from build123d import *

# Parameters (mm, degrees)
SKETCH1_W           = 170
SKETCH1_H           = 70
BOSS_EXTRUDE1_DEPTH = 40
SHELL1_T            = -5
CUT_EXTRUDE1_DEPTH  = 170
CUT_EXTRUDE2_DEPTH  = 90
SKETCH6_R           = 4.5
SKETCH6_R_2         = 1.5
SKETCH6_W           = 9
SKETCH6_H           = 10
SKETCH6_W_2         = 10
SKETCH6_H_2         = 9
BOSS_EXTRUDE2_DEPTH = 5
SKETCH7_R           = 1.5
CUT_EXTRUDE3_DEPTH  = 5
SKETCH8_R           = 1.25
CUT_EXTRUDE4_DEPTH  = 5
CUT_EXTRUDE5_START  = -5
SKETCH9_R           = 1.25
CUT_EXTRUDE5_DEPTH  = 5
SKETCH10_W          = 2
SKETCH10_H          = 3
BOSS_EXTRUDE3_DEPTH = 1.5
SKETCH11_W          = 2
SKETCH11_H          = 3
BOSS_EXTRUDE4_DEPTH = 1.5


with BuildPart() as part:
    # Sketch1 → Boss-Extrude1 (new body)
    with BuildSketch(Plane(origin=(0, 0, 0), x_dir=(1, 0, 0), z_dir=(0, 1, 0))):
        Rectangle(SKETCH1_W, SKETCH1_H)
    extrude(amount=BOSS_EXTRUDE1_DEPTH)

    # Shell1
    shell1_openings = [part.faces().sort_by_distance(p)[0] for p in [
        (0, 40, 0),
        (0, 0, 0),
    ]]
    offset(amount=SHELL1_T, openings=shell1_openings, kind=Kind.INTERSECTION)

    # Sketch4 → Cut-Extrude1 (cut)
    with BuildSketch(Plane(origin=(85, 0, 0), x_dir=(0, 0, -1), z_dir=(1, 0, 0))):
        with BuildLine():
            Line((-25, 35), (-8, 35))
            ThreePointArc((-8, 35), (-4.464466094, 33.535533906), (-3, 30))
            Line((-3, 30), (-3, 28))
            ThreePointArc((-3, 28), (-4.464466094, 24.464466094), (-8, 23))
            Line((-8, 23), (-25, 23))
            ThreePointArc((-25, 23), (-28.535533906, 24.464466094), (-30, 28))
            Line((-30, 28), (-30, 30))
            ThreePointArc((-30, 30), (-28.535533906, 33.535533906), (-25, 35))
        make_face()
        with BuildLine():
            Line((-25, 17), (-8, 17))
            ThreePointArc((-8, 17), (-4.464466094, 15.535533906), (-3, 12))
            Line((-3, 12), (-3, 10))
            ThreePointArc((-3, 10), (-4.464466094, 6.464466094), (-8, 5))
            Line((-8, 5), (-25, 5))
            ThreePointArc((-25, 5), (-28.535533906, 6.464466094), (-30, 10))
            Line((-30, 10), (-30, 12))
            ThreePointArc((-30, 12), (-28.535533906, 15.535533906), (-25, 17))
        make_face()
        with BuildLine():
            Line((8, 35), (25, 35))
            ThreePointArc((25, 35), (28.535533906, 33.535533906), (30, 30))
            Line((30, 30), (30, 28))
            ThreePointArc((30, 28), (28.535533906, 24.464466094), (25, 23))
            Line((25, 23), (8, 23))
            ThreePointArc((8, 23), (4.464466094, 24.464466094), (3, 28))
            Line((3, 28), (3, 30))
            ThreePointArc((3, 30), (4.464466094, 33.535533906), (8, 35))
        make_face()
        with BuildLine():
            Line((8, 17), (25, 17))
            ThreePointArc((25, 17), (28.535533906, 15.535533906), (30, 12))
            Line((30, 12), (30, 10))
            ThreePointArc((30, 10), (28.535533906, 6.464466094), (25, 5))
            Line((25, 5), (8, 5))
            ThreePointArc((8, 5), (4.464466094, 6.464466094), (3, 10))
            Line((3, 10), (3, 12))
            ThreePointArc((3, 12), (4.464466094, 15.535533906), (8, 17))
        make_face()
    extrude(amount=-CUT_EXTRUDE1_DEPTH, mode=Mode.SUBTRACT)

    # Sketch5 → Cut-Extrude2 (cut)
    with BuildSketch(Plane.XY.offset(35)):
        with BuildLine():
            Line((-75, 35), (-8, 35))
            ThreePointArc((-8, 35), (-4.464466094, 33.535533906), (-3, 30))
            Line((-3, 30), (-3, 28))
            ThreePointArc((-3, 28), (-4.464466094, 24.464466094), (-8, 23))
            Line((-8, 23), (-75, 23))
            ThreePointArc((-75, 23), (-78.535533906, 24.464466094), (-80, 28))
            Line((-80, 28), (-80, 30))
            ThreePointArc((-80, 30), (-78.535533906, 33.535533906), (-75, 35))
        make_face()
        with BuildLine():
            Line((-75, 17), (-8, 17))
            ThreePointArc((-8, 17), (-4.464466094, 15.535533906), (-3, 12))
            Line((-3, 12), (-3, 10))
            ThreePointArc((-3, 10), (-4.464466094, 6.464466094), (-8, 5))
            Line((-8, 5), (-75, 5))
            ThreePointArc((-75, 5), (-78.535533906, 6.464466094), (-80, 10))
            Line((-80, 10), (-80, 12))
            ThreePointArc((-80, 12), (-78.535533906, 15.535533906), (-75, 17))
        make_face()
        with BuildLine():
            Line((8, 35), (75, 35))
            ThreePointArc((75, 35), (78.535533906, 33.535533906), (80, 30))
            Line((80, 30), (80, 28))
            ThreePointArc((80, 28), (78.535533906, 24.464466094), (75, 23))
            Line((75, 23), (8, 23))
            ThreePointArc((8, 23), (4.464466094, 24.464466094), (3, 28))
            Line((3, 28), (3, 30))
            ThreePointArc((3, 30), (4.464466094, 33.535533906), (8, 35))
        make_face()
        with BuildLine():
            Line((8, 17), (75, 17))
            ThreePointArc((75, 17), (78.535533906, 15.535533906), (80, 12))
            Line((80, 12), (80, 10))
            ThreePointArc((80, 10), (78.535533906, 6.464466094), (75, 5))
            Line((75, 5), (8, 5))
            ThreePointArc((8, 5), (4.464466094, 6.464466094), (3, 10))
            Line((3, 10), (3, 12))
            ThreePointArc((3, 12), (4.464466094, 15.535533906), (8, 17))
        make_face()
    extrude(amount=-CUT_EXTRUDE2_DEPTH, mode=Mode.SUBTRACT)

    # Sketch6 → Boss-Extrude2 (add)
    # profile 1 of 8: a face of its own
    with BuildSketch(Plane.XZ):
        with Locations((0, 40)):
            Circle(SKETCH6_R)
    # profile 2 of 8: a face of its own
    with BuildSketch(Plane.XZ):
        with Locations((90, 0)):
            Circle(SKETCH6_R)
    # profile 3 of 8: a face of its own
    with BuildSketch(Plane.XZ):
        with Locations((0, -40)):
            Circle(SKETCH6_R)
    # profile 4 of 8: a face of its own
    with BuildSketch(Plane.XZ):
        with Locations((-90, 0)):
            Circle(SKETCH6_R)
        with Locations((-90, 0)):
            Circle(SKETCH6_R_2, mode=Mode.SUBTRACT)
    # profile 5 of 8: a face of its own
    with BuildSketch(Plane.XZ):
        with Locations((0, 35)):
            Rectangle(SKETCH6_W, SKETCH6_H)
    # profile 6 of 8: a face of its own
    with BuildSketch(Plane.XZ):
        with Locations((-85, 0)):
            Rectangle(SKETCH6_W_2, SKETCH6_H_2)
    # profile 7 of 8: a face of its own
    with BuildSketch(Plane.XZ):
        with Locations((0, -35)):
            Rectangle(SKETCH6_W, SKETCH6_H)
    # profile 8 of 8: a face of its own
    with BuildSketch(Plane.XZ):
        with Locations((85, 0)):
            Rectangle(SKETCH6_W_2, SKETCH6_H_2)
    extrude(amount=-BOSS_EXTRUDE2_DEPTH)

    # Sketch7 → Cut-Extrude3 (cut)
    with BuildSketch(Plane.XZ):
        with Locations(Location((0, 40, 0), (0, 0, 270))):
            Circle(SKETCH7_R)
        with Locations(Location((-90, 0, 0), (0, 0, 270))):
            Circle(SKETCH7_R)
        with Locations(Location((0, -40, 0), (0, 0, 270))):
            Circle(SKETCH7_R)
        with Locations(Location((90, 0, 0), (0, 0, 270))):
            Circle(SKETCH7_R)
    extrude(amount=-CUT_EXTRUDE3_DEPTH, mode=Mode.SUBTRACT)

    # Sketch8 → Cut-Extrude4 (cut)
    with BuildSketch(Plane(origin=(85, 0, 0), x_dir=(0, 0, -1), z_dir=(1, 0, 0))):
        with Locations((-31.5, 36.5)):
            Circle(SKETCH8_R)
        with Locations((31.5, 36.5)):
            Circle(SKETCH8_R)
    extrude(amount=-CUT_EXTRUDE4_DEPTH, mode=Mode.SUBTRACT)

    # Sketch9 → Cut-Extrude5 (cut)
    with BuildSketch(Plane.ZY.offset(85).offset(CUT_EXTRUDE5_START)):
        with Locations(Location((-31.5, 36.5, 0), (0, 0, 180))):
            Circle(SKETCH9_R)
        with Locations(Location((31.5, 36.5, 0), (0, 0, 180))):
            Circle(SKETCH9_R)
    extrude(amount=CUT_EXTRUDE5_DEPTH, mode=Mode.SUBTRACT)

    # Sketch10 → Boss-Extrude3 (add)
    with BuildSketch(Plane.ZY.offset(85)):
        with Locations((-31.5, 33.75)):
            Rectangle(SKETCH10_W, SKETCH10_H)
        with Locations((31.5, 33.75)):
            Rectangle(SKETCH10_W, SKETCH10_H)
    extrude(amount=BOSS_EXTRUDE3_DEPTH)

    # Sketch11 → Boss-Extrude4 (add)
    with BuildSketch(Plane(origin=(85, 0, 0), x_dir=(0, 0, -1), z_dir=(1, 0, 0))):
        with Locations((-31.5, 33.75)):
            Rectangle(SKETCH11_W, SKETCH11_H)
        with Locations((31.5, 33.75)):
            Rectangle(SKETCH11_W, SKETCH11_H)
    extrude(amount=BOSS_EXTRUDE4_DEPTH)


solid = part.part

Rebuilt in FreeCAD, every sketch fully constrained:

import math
import FreeCAD as App
import Part
import Sketcher

V = App.Vector
Q = App.Units.Quantity


def faces_at(feature, points):
    """Names of the faces that lie closest to the given points."""
    faces = feature.Shape.Faces
    near = lambda p: min(range(len(faces)), key=lambda i: faces[i].distToShape(Part.Vertex(*p))[0])
    return sorted({f"Face{near(p) + 1}" for p in points})


def add_polygon(sketch, points):
    """Adds a closed chain of lines whose ends are joined by coincident constraints."""
    first, n = sketch.GeometryCount, len(points)
    for a, b in zip(points, points[1:] + points[:1]):
        sketch.addGeometry(Part.LineSegment(App.Vector(*a, 0), App.Vector(*b, 0)), False)
    for i in range(n):
        sketch.addConstraint(Sketcher.Constraint("Coincident", first + i, 2, first + (i + 1) % n, 1))

doc = App.newDocument("Part")
body = doc.addObject("PartDesign::Body", "Body")

# Sketch on XZ plane
sketch1 = body.newObject("Sketcher::SketchObject", "Sketch")
sketch1.AttachmentSupport = (doc.getObject("XZ_Plane"), [""])
sketch1.MapMode = "FlatFace"
add_polygon(sketch1, [(-85, -35), (-85, 35), (85, 35), (85, -35)])  # lines 0-3
sketch1.addConstraint([
    Sketcher.Constraint("Vertical", 0),
    Sketcher.Constraint("Horizontal", 1),
    Sketcher.Constraint("Vertical", 2),
    Sketcher.Constraint("Horizontal", 3),
    Sketcher.Constraint("Symmetric", 0, 2, 2, 2, -1, 1),
    Sketcher.Constraint("DistanceX", 1, 1, 1, 2, Q("170 mm")),
    Sketcher.Constraint("DistanceY", 0, 1, 0, 2, Q("70 mm")),
])
pad1 = body.newObject("PartDesign::Pad", "Pad")
pad1.Profile = sketch1
pad1.Length = 40
pad1.Reversed = True
doc.recompute()

thickness = body.newObject("PartDesign::Thickness", "Thickness")
thickness.Base = (pad1, faces_at(pad1, [(0, 40, 0), (0, 0, 0)]))
thickness.Value = 5
thickness.Reversed = True
thickness.Join = "Intersection"

# Sketch on YZ plane
sketch2 = body.newObject("Sketcher::SketchObject", "Sketch001")
sketch2.AttachmentSupport = (doc.getObject("YZ_Plane"), [""])
sketch2.MapMode = "FlatFace"
sketch2.AttachmentOffset = App.Placement(V(0, 0, 85), App.Rotation())
sketch2.addGeometry([
    Part.LineSegment(V(35, 8, 0), V(35, 25, 0)),  # 0
    Part.ArcOfCircle(Part.Circle(V(30, 25, 0), V(0, 0, 1), 5), math.radians(0), math.radians(90)),  # 1
    Part.LineSegment(V(30, 30, 0), V(28, 30, 0)),  # 2
    Part.ArcOfCircle(Part.Circle(V(28, 25, 0), V(0, 0, 1), 5), math.radians(90), math.radians(180)),  # 3
    Part.LineSegment(V(23, 25, 0), V(23, 8, 0)),  # 4
    Part.ArcOfCircle(Part.Circle(V(28, 8, 0), V(0, 0, 1), 5), math.radians(180), math.radians(270)),  # 5
    Part.LineSegment(V(28, 3, 0), V(30, 3, 0)),  # 6
    Part.ArcOfCircle(Part.Circle(V(30, 8, 0), V(0, 0, 1), 5), math.radians(-90), math.radians(0)),  # 7
    Part.LineSegment(V(17, 8, 0), V(17, 25, 0)),  # 8
    Part.ArcOfCircle(Part.Circle(V(12, 25, 0), V(0, 0, 1), 5), math.radians(0), math.radians(90)),  # 9
    Part.LineSegment(V(12, 30, 0), V(10, 30, 0)),  # 10
    Part.ArcOfCircle(Part.Circle(V(10, 25, 0), V(0, 0, 1), 5), math.radians(90), math.radians(180)),  # 11
    Part.LineSegment(V(5, 25, 0), V(5, 8, 0)),  # 12
    Part.ArcOfCircle(Part.Circle(V(10, 8, 0), V(0, 0, 1), 5), math.radians(180), math.radians(270)),  # 13
    Part.LineSegment(V(10, 3, 0), V(12, 3, 0)),  # 14
    Part.ArcOfCircle(Part.Circle(V(12, 8, 0), V(0, 0, 1), 5), math.radians(-90), math.radians(0)),  # 15
    Part.LineSegment(V(35, -25, 0), V(35, -8, 0)),  # 16
    Part.ArcOfCircle(Part.Circle(V(30, -8, 0), V(0, 0, 1), 5), math.radians(0), math.radians(90)),  # 17
    Part.LineSegment(V(30, -3, 0), V(28, -3, 0)),  # 18
    Part.ArcOfCircle(Part.Circle(V(28, -8, 0), V(0, 0, 1), 5), math.radians(90), math.radians(180)),  # 19
    Part.LineSegment(V(23, -8, 0), V(23, -25, 0)),  # 20
    Part.ArcOfCircle(Part.Circle(V(28, -25, 0), V(0, 0, 1), 5), math.radians(180), math.radians(270)),  # 21
    Part.LineSegment(V(28, -30, 0), V(30, -30, 0)),  # 22
    Part.ArcOfCircle(Part.Circle(V(30, -25, 0), V(0, 0, 1), 5), math.radians(-90), math.radians(0)),  # 23
    Part.LineSegment(V(17, -25, 0), V(17, -8, 0)),  # 24
    Part.ArcOfCircle(Part.Circle(V(12, -8, 0), V(0, 0, 1), 5), math.radians(0), math.radians(90)),  # 25
    Part.LineSegment(V(12, -3, 0), V(10, -3, 0)),  # 26
    Part.ArcOfCircle(Part.Circle(V(10, -8, 0), V(0, 0, 1), 5), math.radians(90), math.radians(180)),  # 27
    Part.LineSegment(V(5, -8, 0), V(5, -25, 0)),  # 28
    Part.ArcOfCircle(Part.Circle(V(10, -25, 0), V(0, 0, 1), 5), math.radians(180), math.radians(270)),  # 29
    Part.LineSegment(V(10, -30, 0), V(12, -30, 0)),  # 30
    Part.ArcOfCircle(Part.Circle(V(12, -25, 0), V(0, 0, 1), 5), math.radians(-90), math.radians(0)),  # 31
], False)
sketch2.addConstraint([
    Sketcher.Constraint("Tangent", 0, 2, 1, 1),
    Sketcher.Constraint("Tangent", 1, 2, 2, 1),
    Sketcher.Constraint("Tangent", 2, 2, 3, 1),
    Sketcher.Constraint("Tangent", 3, 2, 4, 1),
    Sketcher.Constraint("Tangent", 4, 2, 5, 1),
    Sketcher.Constraint("Tangent", 5, 2, 6, 1),
    Sketcher.Constraint("Tangent", 6, 2, 7, 1),
    Sketcher.Constraint("Tangent", 7, 2, 0, 1),
    Sketcher.Constraint("Tangent", 8, 2, 9, 1),
    Sketcher.Constraint("Tangent", 9, 2, 10, 1),
    Sketcher.Constraint("Tangent", 10, 2, 11, 1),
    Sketcher.Constraint("Tangent", 11, 2, 12, 1),
    Sketcher.Constraint("Tangent", 12, 2, 13, 1),
    Sketcher.Constraint("Tangent", 13, 2, 14, 1),
    Sketcher.Constraint("Tangent", 14, 2, 15, 1),
    Sketcher.Constraint("Tangent", 15, 2, 8, 1),
    Sketcher.Constraint("Tangent", 16, 2, 17, 1),
    Sketcher.Constraint("Tangent", 17, 2, 18, 1),
    Sketcher.Constraint("Tangent", 18, 2, 19, 1),
    Sketcher.Constraint("Tangent", 19, 2, 20, 1),
    Sketcher.Constraint("Tangent", 20, 2, 21, 1),
    Sketcher.Constraint("Tangent", 21, 2, 22, 1),
    Sketcher.Constraint("Tangent", 22, 2, 23, 1),
    Sketcher.Constraint("Tangent", 23, 2, 16, 1),
    Sketcher.Constraint("Tangent", 24, 2, 25, 1),
    Sketcher.Constraint("Tangent", 25, 2, 26, 1),
    Sketcher.Constraint("Tangent", 26, 2, 27, 1),
    Sketcher.Constraint("Tangent", 27, 2, 28, 1),
    Sketcher.Constraint("Tangent", 28, 2, 29, 1),
    Sketcher.Constraint("Tangent", 29, 2, 30, 1),
    Sketcher.Constraint("Tangent", 30, 2, 31, 1),
    Sketcher.Constraint("Tangent", 31, 2, 24, 1),
    Sketcher.Constraint("Vertical", 0),
    Sketcher.Constraint("Horizontal", 2),
    Sketcher.Constraint("Vertical", 4),
    Sketcher.Constraint("Horizontal", 6),
    Sketcher.Constraint("Vertical", 8),
    Sketcher.Constraint("Horizontal", 10),
    Sketcher.Constraint("Vertical", 12),
    Sketcher.Constraint("Horizontal", 14),
    Sketcher.Constraint("Vertical", 16),
    Sketcher.Constraint("Horizontal", 18),
    Sketcher.Constraint("Vertical", 20),
    Sketcher.Constraint("Horizontal", 22),
    Sketcher.Constraint("Vertical", 24),
    Sketcher.Constraint("Horizontal", 26),
    Sketcher.Constraint("Vertical", 28),
    Sketcher.Constraint("Horizontal", 30),
    Sketcher.Constraint("Equal", 1, 3),
    Sketcher.Constraint("Equal", 3, 5),
    Sketcher.Constraint("Equal", 5, 7),
    Sketcher.Constraint("Equal", 7, 9),
    Sketcher.Constraint("Equal", 9, 11),
    Sketcher.Constraint("Equal", 11, 13),
    Sketcher.Constraint("Equal", 13, 15),
    Sketcher.Constraint("Equal", 15, 17),
    Sketcher.Constraint("Equal", 17, 19),
    Sketcher.Constraint("Equal", 19, 21),
    Sketcher.Constraint("Equal", 21, 23),
    Sketcher.Constraint("Equal", 23, 25),
    Sketcher.Constraint("Equal", 25, 27),
    Sketcher.Constraint("Equal", 27, 29),
    Sketcher.Constraint("Equal", 29, 31),
    Sketcher.Constraint("Symmetric", 7, 3, 17, 3, -1),
    Sketcher.Constraint("Symmetric", 3, 3, 21, 3, -1),
    Sketcher.Constraint("Symmetric", 15, 3, 25, 3, -1),
    Sketcher.Constraint("Symmetric", 11, 3, 29, 3, -1),
    Sketcher.Constraint("Horizontal", 3, 3, 9, 3),
    Sketcher.Constraint("Horizontal", 7, 3, 13, 3),
    Sketcher.Constraint("Equal", 6, 10),
    Sketcher.Constraint("Radius", 1, Q("5 mm")),
    Sketcher.Constraint("DistanceX", 2, 2, 2, 1, Q("2 mm")),
    Sketcher.Constraint("DistanceY", 0, 1, 0, 2, Q("17 mm")),
    Sketcher.Constraint("DistanceX", -1, 1, 1, 3, Q("30 mm")),
    Sketcher.Constraint("DistanceY", -1, 1, 1, 3, Q("25 mm")),
    Sketcher.Constraint("DistanceX", -1, 1, 9, 3, Q("12 mm")),
])
pocket1 = body.newObject("PartDesign::Pocket", "Pocket")
pocket1.Profile = sketch2
pocket1.Length = 170

# Sketch on XY plane
sketch3 = body.newObject("Sketcher::SketchObject", "Sketch002")
sketch3.AttachmentSupport = (doc.getObject("XY_Plane"), [""])
sketch3.MapMode = "FlatFace"
sketch3.AttachmentOffset = App.Placement(V(0, 0, 35), App.Rotation())
sketch3.addGeometry([
    Part.LineSegment(V(-8, 35, 0), V(-75, 35, 0)),  # 0
    Part.ArcOfCircle(Part.Circle(V(-75, 30, 0), V(0, 0, 1), 5), math.radians(90), math.radians(180)),  # 1
    Part.LineSegment(V(-80, 30, 0), V(-80, 28, 0)),  # 2
    Part.ArcOfCircle(Part.Circle(V(-75, 28, 0), V(0, 0, 1), 5), math.radians(180), math.radians(270)),  # 3
    Part.LineSegment(V(-75, 23, 0), V(-8, 23, 0)),  # 4
    Part.ArcOfCircle(Part.Circle(V(-8, 28, 0), V(0, 0, 1), 5), math.radians(-90), math.radians(0)),  # 5
    Part.LineSegment(V(-3, 28, 0), V(-3, 30, 0)),  # 6
    Part.ArcOfCircle(Part.Circle(V(-8, 30, 0), V(0, 0, 1), 5), math.radians(0), math.radians(90)),  # 7
    Part.LineSegment(V(-8, 17, 0), V(-75, 17, 0)),  # 8
    Part.ArcOfCircle(Part.Circle(V(-75, 12, 0), V(0, 0, 1), 5), math.radians(90), math.radians(180)),  # 9
    Part.LineSegment(V(-80, 12, 0), V(-80, 10, 0)),  # 10
    Part.ArcOfCircle(Part.Circle(V(-75, 10, 0), V(0, 0, 1), 5), math.radians(180), math.radians(270)),  # 11
    Part.LineSegment(V(-75, 5, 0), V(-8, 5, 0)),  # 12
    Part.ArcOfCircle(Part.Circle(V(-8, 10, 0), V(0, 0, 1), 5), math.radians(-90), math.radians(0)),  # 13
    Part.LineSegment(V(-3, 10, 0), V(-3, 12, 0)),  # 14
    Part.ArcOfCircle(Part.Circle(V(-8, 12, 0), V(0, 0, 1), 5), math.radians(0), math.radians(90)),  # 15
    Part.LineSegment(V(75, 35, 0), V(8, 35, 0)),  # 16
    Part.ArcOfCircle(Part.Circle(V(8, 30, 0), V(0, 0, 1), 5), math.radians(90), math.radians(180)),  # 17
    Part.LineSegment(V(3, 30, 0), V(3, 28, 0)),  # 18
    Part.ArcOfCircle(Part.Circle(V(8, 28, 0), V(0, 0, 1), 5), math.radians(180), math.radians(270)),  # 19
    Part.LineSegment(V(8, 23, 0), V(75, 23, 0)),  # 20
    Part.ArcOfCircle(Part.Circle(V(75, 28, 0), V(0, 0, 1), 5), math.radians(-90), math.radians(0)),  # 21
    Part.LineSegment(V(80, 28, 0), V(80, 30, 0)),  # 22
    Part.ArcOfCircle(Part.Circle(V(75, 30, 0), V(0, 0, 1), 5), math.radians(0), math.radians(90)),  # 23
    Part.LineSegment(V(75, 17, 0), V(8, 17, 0)),  # 24
    Part.ArcOfCircle(Part.Circle(V(8, 12, 0), V(0, 0, 1), 5), math.radians(90), math.radians(180)),  # 25
    Part.LineSegment(V(3, 12, 0), V(3, 10, 0)),  # 26
    Part.ArcOfCircle(Part.Circle(V(8, 10, 0), V(0, 0, 1), 5), math.radians(180), math.radians(270)),  # 27
    Part.LineSegment(V(8, 5, 0), V(75, 5, 0)),  # 28
    Part.ArcOfCircle(Part.Circle(V(75, 10, 0), V(0, 0, 1), 5), math.radians(-90), math.radians(0)),  # 29
    Part.LineSegment(V(80, 10, 0), V(80, 12, 0)),  # 30
    Part.ArcOfCircle(Part.Circle(V(75, 12, 0), V(0, 0, 1), 5), math.radians(0), math.radians(90)),  # 31
], False)
sketch3.addConstraint([
    Sketcher.Constraint("Tangent", 0, 2, 1, 1),
    Sketcher.Constraint("Tangent", 1, 2, 2, 1),
    Sketcher.Constraint("Tangent", 2, 2, 3, 1),
    Sketcher.Constraint("Tangent", 3, 2, 4, 1),
    Sketcher.Constraint("Tangent", 4, 2, 5, 1),
    Sketcher.Constraint("Tangent", 5, 2, 6, 1),
    Sketcher.Constraint("Tangent", 6, 2, 7, 1),
    Sketcher.Constraint("Tangent", 7, 2, 0, 1),
    Sketcher.Constraint("Tangent", 8, 2, 9, 1),
    Sketcher.Constraint("Tangent", 9, 2, 10, 1),
    Sketcher.Constraint("Tangent", 10, 2, 11, 1),
    Sketcher.Constraint("Tangent", 11, 2, 12, 1),
    Sketcher.Constraint("Tangent", 12, 2, 13, 1),
    Sketcher.Constraint("Tangent", 13, 2, 14, 1),
    Sketcher.Constraint("Tangent", 14, 2, 15, 1),
    Sketcher.Constraint("Tangent", 15, 2, 8, 1),
    Sketcher.Constraint("Tangent", 16, 2, 17, 1),
    Sketcher.Constraint("Tangent", 17, 2, 18, 1),
    Sketcher.Constraint("Tangent", 18, 2, 19, 1),
    Sketcher.Constraint("Tangent", 19, 2, 20, 1),
    Sketcher.Constraint("Tangent", 20, 2, 21, 1),
    Sketcher.Constraint("Tangent", 21, 2, 22, 1),
    Sketcher.Constraint("Tangent", 22, 2, 23, 1),
    Sketcher.Constraint("Tangent", 23, 2, 16, 1),
    Sketcher.Constraint("Tangent", 24, 2, 25, 1),
    Sketcher.Constraint("Tangent", 25, 2, 26, 1),
    Sketcher.Constraint("Tangent", 26, 2, 27, 1),
    Sketcher.Constraint("Tangent", 27, 2, 28, 1),
    Sketcher.Constraint("Tangent", 28, 2, 29, 1),
    Sketcher.Constraint("Tangent", 29, 2, 30, 1),
    Sketcher.Constraint("Tangent", 30, 2, 31, 1),
    Sketcher.Constraint("Tangent", 31, 2, 24, 1),
    Sketcher.Constraint("Horizontal", 0),
    Sketcher.Constraint("Vertical", 2),
    Sketcher.Constraint("Horizontal", 4),
    Sketcher.Constraint("Vertical", 6),
    Sketcher.Constraint("Horizontal", 8),
    Sketcher.Constraint("Vertical", 10),
    Sketcher.Constraint("Horizontal", 12),
    Sketcher.Constraint("Vertical", 14),
    Sketcher.Constraint("Horizontal", 16),
    Sketcher.Constraint("Vertical", 18),
    Sketcher.Constraint("Horizontal", 20),
    Sketcher.Constraint("Vertical", 22),
    Sketcher.Constraint("Horizontal", 24),
    Sketcher.Constraint("Vertical", 26),
    Sketcher.Constraint("Horizontal", 28),
    Sketcher.Constraint("Vertical", 30),
    Sketcher.Constraint("Equal", 1, 3),
    Sketcher.Constraint("Equal", 3, 5),
    Sketcher.Constraint("Equal", 5, 7),
    Sketcher.Constraint("Equal", 7, 9),
    Sketcher.Constraint("Equal", 9, 11),
    Sketcher.Constraint("Equal", 11, 13),
    Sketcher.Constraint("Equal", 13, 15),
    Sketcher.Constraint("Equal", 15, 17),
    Sketcher.Constraint("Equal", 17, 19),
    Sketcher.Constraint("Equal", 19, 21),
    Sketcher.Constraint("Equal", 21, 23),
    Sketcher.Constraint("Equal", 23, 25),
    Sketcher.Constraint("Equal", 25, 27),
    Sketcher.Constraint("Equal", 27, 29),
    Sketcher.Constraint("Equal", 29, 31),
    Sketcher.Constraint("Symmetric", 7, 3, 17, 3, -2),
    Sketcher.Constraint("Symmetric", 3, 3, 21, 3, -2),
    Sketcher.Constraint("Symmetric", 15, 3, 25, 3, -2),
    Sketcher.Constraint("Symmetric", 11, 3, 29, 3, -2),
    Sketcher.Constraint("Vertical", 3, 3, 9, 3),
    Sketcher.Constraint("Vertical", 7, 3, 13, 3),
    Sketcher.Constraint("Equal", 6, 10),
    Sketcher.Constraint("Radius", 1, Q("5 mm")),
    Sketcher.Constraint("DistanceX", 0, 2, 0, 1, Q("67 mm")),
    Sketcher.Constraint("DistanceY", 2, 2, 2, 1, Q("2 mm")),
    Sketcher.Constraint("DistanceX", 1, 3, -1, 1, Q("75 mm")),
    Sketcher.Constraint("DistanceY", -1, 1, 1, 3, Q("30 mm")),
    Sketcher.Constraint("DistanceY", -1, 1, 9, 3, Q("12 mm")),
])
pocket2 = body.newObject("PartDesign::Pocket", "Pocket001")
pocket2.Profile = sketch3
pocket2.Length = 90

# Sketch on XZ plane
sketch4 = body.newObject("Sketcher::SketchObject", "Sketch003")
sketch4.AttachmentSupport = (doc.getObject("XZ_Plane"), [""])
sketch4.MapMode = "FlatFace"
sketch4.addGeometry([
    Part.ArcOfCircle(Part.Circle(V(0, 40, 0), V(0, 0, 1), 4.5), math.radians(0), math.radians(180)),  # 0
    Part.LineSegment(V(-4.5, 40, 0), V(-4.5, 30, 0)),  # 1
    Part.LineSegment(V(-4.5, 30, 0), V(4.5, 30, 0)),  # 2
    Part.LineSegment(V(4.5, 30, 0), V(4.5, 40, 0)),  # 3
    Part.ArcOfCircle(Part.Circle(V(90, 0, 0), V(0, 0, 1), 4.5), math.radians(-90), math.radians(90)),  # 4
    Part.LineSegment(V(90, 4.5, 0), V(80, 4.5, 0)),  # 5
    Part.LineSegment(V(80, 4.5, 0), V(80, -4.5, 0)),  # 6
    Part.LineSegment(V(80, -4.5, 0), V(90, -4.5, 0)),  # 7
    Part.ArcOfCircle(Part.Circle(V(0, -40, 0), V(0, 0, 1), 4.5), math.radians(180), math.radians(360)),  # 8
    Part.LineSegment(V(4.5, -40, 0), V(4.5, -30, 0)),  # 9
    Part.LineSegment(V(4.5, -30, 0), V(-4.5, -30, 0)),  # 10
    Part.LineSegment(V(-4.5, -30, 0), V(-4.5, -40, 0)),  # 11
    Part.LineSegment(V(-90, -4.5, 0), V(-80, -4.5, 0)),  # 12
    Part.LineSegment(V(-80, -4.5, 0), V(-80, 4.5, 0)),  # 13
    Part.LineSegment(V(-80, 4.5, 0), V(-90, 4.5, 0)),  # 14
    Part.ArcOfCircle(Part.Circle(V(-90, 0, 0), V(0, 0, 1), 4.5), math.radians(90), math.radians(270)),  # 15
    Part.ArcOfCircle(Part.Circle(V(-90, 0, 0), V(0, 0, 1), 1.5), math.radians(90), math.radians(270)),  # 16
    Part.LineSegment(V(-90, 1.5, 0), V(-90, -1.5, 0)),  # 17
], False)
sketch4.addConstraint([
    Sketcher.Constraint("Tangent", 0, 2, 1, 1),
    Sketcher.Constraint("Coincident", 1, 2, 2, 1),
    Sketcher.Constraint("Coincident", 2, 2, 3, 1),
    Sketcher.Constraint("Tangent", 3, 2, 0, 1),
    Sketcher.Constraint("Tangent", 4, 2, 5, 1),
    Sketcher.Constraint("Coincident", 5, 2, 6, 1),
    Sketcher.Constraint("Coincident", 6, 2, 7, 1),
    Sketcher.Constraint("Tangent", 7, 2, 4, 1),
    Sketcher.Constraint("Tangent", 8, 2, 9, 1),
    Sketcher.Constraint("Coincident", 9, 2, 10, 1),
    Sketcher.Constraint("Coincident", 10, 2, 11, 1),
    Sketcher.Constraint("Tangent", 11, 2, 8, 1),
    Sketcher.Constraint("Coincident", 12, 2, 13, 1),
    Sketcher.Constraint("Coincident", 13, 2, 14, 1),
    Sketcher.Constraint("Tangent", 14, 2, 15, 1),
    Sketcher.Constraint("Tangent", 15, 2, 12, 1),
    Sketcher.Constraint("Coincident", 16, 1, 17, 1),
    Sketcher.Constraint("Coincident", 17, 2, 16, 2),
    Sketcher.Constraint("Vertical", 1),
    Sketcher.Constraint("Horizontal", 2),
    Sketcher.Constraint("Vertical", 3),
    Sketcher.Constraint("Horizontal", 5),
    Sketcher.Constraint("Vertical", 6),
    Sketcher.Constraint("Horizontal", 7),
    Sketcher.Constraint("Vertical", 9),
    Sketcher.Constraint("Horizontal", 10),
    Sketcher.Constraint("Vertical", 11),
    Sketcher.Constraint("Horizontal", 12),
    Sketcher.Constraint("Vertical", 13),
    Sketcher.Constraint("Horizontal", 14),
    Sketcher.Constraint("Vertical", 17),
    Sketcher.Constraint("Coincident", 16, 3, 15, 3),
    Sketcher.Constraint("Equal", 0, 4),
    Sketcher.Constraint("Equal", 4, 8),
    Sketcher.Constraint("Equal", 8, 15),
    Sketcher.Constraint("Symmetric", 0, 3, 8, 3, -1, 1),
    Sketcher.Constraint("Symmetric", 4, 3, 15, 3, -1, 1),
    Sketcher.Constraint("Symmetric", 6, 2, 12, 2, -2),
    Sketcher.Constraint("Symmetric", 2, 2, 9, 2, -1),
    Sketcher.Constraint("Vertical", 15, 2, 16, 1),
    Sketcher.Constraint("Equal", 14, 1),
    Sketcher.Constraint("Radius", 0, Q("4.5 mm")),
    Sketcher.Constraint("Radius", 16, Q("1.5 mm")),
    Sketcher.Constraint("DistanceX", 5, 2, 5, 1, Q("10 mm")),
    Sketcher.Constraint("DistanceY", -1, 1, 0, 3, Q("40 mm")),
    Sketcher.Constraint("DistanceX", -1, 1, 4, 3, Q("90 mm")),
])
pad2 = body.newObject("PartDesign::Pad", "Pad001")
pad2.Profile = sketch4
pad2.Length = 5
pad2.Reversed = True

# Sketch on XZ plane
sketch5 = body.newObject("Sketcher::SketchObject", "Sketch004")
sketch5.AttachmentSupport = (doc.getObject("XZ_Plane"), [""])
sketch5.MapMode = "FlatFace"
sketch5.addGeometry([
    Part.Circle(V(0, 40, 0), V(0, 0, 1), 1.5),
    Part.Circle(V(-90, 0, 0), V(0, 0, 1), 1.5),
    Part.Circle(V(0, -40, 0), V(0, 0, 1), 1.5),
    Part.Circle(V(90, 0, 0), V(0, 0, 1), 1.5),
], False)
sketch5.addConstraint([
    Sketcher.Constraint("Equal", 0, 1),
    Sketcher.Constraint("Equal", 1, 2),
    Sketcher.Constraint("Equal", 2, 3),
    Sketcher.Constraint("Symmetric", 0, 3, 2, 3, -1, 1),
    Sketcher.Constraint("Symmetric", 1, 3, 3, 3, -1, 1),
    Sketcher.Constraint("PointOnObject", 0, 3, -2),
    Sketcher.Constraint("PointOnObject", 1, 3, -1),
    Sketcher.Constraint("Diameter", 0, Q("3 mm")),
    Sketcher.Constraint("DistanceY", -1, 1, 0, 3, Q("40 mm")),
    Sketcher.Constraint("DistanceX", 1, 3, -1, 1, Q("90 mm")),
])
pocket3 = body.newObject("PartDesign::Pocket", "Pocket002")
pocket3.Profile = sketch5
pocket3.Length = 5

# Sketch on YZ plane
sketch6 = body.newObject("Sketcher::SketchObject", "Sketch005")
sketch6.AttachmentSupport = (doc.getObject("YZ_Plane"), [""])
sketch6.MapMode = "FlatFace"
sketch6.AttachmentOffset = App.Placement(V(0, 0, 85), App.Rotation())
sketch6.addGeometry([
    Part.Circle(V(36.5, 31.5, 0), V(0, 0, 1), 1.25),
    Part.Circle(V(36.5, -31.5, 0), V(0, 0, 1), 1.25),
], False)
sketch6.addConstraint([
    Sketcher.Constraint("Equal", 0, 1),
    Sketcher.Constraint("Symmetric", 0, 3, 1, 3, -1),
    Sketcher.Constraint("Diameter", 0, Q("2.5 mm")),
    Sketcher.Constraint("DistanceY", 1, 3, 0, 3, Q("63 mm")),
    Sketcher.Constraint("DistanceX", -1, 1, 0, 3, Q("36.5 mm")),
])
pocket4 = body.newObject("PartDesign::Pocket", "Pocket003")
pocket4.Profile = sketch6
pocket4.Length = 5

# Sketch on YZ plane
sketch7 = body.newObject("Sketcher::SketchObject", "Sketch006")
sketch7.AttachmentSupport = (doc.getObject("YZ_Plane"), [""])
sketch7.MapMode = "FlatFace"
sketch7.AttachmentOffset = App.Placement(V(0, 0, -80), App.Rotation())
sketch7.addGeometry([
    Part.Circle(V(36.5, -31.5, 0), V(0, 0, 1), 1.25),
    Part.Circle(V(36.5, 31.5, 0), V(0, 0, 1), 1.25),
], False)
sketch7.addConstraint([
    Sketcher.Constraint("Equal", 0, 1),
    Sketcher.Constraint("Symmetric", 0, 3, 1, 3, -1),
    Sketcher.Constraint("Diameter", 0, Q("2.5 mm")),
    Sketcher.Constraint("DistanceY", 0, 3, 1, 3, Q("63 mm")),
    Sketcher.Constraint("DistanceX", -1, 1, 0, 3, Q("36.5 mm")),
])
pocket5 = body.newObject("PartDesign::Pocket", "Pocket004")
pocket5.Profile = sketch7
pocket5.Length = 5

# Sketch on YZ plane
sketch8 = body.newObject("Sketcher::SketchObject", "Sketch007")
sketch8.AttachmentSupport = (doc.getObject("YZ_Plane"), [""])
sketch8.MapMode = "FlatFace"
sketch8.AttachmentOffset = App.Placement(V(0, 0, -85), App.Rotation())
add_polygon(sketch8, [(35.25, -32.5), (32.25, -32.5), (32.25, -30.5), (35.25, -30.5)])  # lines 0-3
add_polygon(sketch8, [(35.25, 30.5), (32.25, 30.5), (32.25, 32.5), (35.25, 32.5)])  # lines 4-7
sketch8.addConstraint([
    Sketcher.Constraint("Horizontal", 0),
    Sketcher.Constraint("Vertical", 1),
    Sketcher.Constraint("Horizontal", 2),
    Sketcher.Constraint("Vertical", 3),
    Sketcher.Constraint("Horizontal", 4),
    Sketcher.Constraint("Vertical", 5),
    Sketcher.Constraint("Horizontal", 6),
    Sketcher.Constraint("Vertical", 7),
    Sketcher.Constraint("Symmetric", 1, 2, 4, 2, -1),
    Sketcher.Constraint("Symmetric", 3, 2, 6, 2, -1),
    Sketcher.Constraint("DistanceX", 0, 2, 0, 1, Q("3 mm")),
    Sketcher.Constraint("DistanceY", 1, 1, 1, 2, Q("2 mm")),
    Sketcher.Constraint("DistanceY", 1, 2, 4, 2, Q("61 mm")),
    Sketcher.Constraint("DistanceX", -1, 1, 0, 2, Q("32.25 mm")),
])
pad3 = body.newObject("PartDesign::Pad", "Pad002")
pad3.Profile = sketch8
pad3.Length = 1.5
pad3.Reversed = True

# Sketch on YZ plane
sketch9 = body.newObject("Sketcher::SketchObject", "Sketch008")
sketch9.AttachmentSupport = (doc.getObject("YZ_Plane"), [""])
sketch9.MapMode = "FlatFace"
sketch9.AttachmentOffset = App.Placement(V(0, 0, 85), App.Rotation())
add_polygon(sketch9, [(35.25, 32.5), (32.25, 32.5), (32.25, 30.5), (35.25, 30.5)])  # lines 0-3
add_polygon(sketch9, [(35.25, -30.5), (32.25, -30.5), (32.25, -32.5), (35.25, -32.5)])  # lines 4-7
sketch9.addConstraint([
    Sketcher.Constraint("Horizontal", 0),
    Sketcher.Constraint("Vertical", 1),
    Sketcher.Constraint("Horizontal", 2),
    Sketcher.Constraint("Vertical", 3),
    Sketcher.Constraint("Horizontal", 4),
    Sketcher.Constraint("Vertical", 5),
    Sketcher.Constraint("Horizontal", 6),
    Sketcher.Constraint("Vertical", 7),
    Sketcher.Constraint("Symmetric", 1, 2, 4, 2, -1),
    Sketcher.Constraint("Symmetric", 3, 2, 6, 2, -1),
    Sketcher.Constraint("DistanceX", 0, 2, 0, 1, Q("3 mm")),
    Sketcher.Constraint("DistanceY", 1, 2, 1, 1, Q("2 mm")),
    Sketcher.Constraint("DistanceY", 4, 2, 1, 2, Q("61 mm")),
    Sketcher.Constraint("DistanceX", -1, 1, 0, 2, Q("32.25 mm")),
])
pad4 = body.newObject("PartDesign::Pad", "Pad003")
pad4.Profile = sketch9
pad4.Length = 1.5

doc.recompute()
